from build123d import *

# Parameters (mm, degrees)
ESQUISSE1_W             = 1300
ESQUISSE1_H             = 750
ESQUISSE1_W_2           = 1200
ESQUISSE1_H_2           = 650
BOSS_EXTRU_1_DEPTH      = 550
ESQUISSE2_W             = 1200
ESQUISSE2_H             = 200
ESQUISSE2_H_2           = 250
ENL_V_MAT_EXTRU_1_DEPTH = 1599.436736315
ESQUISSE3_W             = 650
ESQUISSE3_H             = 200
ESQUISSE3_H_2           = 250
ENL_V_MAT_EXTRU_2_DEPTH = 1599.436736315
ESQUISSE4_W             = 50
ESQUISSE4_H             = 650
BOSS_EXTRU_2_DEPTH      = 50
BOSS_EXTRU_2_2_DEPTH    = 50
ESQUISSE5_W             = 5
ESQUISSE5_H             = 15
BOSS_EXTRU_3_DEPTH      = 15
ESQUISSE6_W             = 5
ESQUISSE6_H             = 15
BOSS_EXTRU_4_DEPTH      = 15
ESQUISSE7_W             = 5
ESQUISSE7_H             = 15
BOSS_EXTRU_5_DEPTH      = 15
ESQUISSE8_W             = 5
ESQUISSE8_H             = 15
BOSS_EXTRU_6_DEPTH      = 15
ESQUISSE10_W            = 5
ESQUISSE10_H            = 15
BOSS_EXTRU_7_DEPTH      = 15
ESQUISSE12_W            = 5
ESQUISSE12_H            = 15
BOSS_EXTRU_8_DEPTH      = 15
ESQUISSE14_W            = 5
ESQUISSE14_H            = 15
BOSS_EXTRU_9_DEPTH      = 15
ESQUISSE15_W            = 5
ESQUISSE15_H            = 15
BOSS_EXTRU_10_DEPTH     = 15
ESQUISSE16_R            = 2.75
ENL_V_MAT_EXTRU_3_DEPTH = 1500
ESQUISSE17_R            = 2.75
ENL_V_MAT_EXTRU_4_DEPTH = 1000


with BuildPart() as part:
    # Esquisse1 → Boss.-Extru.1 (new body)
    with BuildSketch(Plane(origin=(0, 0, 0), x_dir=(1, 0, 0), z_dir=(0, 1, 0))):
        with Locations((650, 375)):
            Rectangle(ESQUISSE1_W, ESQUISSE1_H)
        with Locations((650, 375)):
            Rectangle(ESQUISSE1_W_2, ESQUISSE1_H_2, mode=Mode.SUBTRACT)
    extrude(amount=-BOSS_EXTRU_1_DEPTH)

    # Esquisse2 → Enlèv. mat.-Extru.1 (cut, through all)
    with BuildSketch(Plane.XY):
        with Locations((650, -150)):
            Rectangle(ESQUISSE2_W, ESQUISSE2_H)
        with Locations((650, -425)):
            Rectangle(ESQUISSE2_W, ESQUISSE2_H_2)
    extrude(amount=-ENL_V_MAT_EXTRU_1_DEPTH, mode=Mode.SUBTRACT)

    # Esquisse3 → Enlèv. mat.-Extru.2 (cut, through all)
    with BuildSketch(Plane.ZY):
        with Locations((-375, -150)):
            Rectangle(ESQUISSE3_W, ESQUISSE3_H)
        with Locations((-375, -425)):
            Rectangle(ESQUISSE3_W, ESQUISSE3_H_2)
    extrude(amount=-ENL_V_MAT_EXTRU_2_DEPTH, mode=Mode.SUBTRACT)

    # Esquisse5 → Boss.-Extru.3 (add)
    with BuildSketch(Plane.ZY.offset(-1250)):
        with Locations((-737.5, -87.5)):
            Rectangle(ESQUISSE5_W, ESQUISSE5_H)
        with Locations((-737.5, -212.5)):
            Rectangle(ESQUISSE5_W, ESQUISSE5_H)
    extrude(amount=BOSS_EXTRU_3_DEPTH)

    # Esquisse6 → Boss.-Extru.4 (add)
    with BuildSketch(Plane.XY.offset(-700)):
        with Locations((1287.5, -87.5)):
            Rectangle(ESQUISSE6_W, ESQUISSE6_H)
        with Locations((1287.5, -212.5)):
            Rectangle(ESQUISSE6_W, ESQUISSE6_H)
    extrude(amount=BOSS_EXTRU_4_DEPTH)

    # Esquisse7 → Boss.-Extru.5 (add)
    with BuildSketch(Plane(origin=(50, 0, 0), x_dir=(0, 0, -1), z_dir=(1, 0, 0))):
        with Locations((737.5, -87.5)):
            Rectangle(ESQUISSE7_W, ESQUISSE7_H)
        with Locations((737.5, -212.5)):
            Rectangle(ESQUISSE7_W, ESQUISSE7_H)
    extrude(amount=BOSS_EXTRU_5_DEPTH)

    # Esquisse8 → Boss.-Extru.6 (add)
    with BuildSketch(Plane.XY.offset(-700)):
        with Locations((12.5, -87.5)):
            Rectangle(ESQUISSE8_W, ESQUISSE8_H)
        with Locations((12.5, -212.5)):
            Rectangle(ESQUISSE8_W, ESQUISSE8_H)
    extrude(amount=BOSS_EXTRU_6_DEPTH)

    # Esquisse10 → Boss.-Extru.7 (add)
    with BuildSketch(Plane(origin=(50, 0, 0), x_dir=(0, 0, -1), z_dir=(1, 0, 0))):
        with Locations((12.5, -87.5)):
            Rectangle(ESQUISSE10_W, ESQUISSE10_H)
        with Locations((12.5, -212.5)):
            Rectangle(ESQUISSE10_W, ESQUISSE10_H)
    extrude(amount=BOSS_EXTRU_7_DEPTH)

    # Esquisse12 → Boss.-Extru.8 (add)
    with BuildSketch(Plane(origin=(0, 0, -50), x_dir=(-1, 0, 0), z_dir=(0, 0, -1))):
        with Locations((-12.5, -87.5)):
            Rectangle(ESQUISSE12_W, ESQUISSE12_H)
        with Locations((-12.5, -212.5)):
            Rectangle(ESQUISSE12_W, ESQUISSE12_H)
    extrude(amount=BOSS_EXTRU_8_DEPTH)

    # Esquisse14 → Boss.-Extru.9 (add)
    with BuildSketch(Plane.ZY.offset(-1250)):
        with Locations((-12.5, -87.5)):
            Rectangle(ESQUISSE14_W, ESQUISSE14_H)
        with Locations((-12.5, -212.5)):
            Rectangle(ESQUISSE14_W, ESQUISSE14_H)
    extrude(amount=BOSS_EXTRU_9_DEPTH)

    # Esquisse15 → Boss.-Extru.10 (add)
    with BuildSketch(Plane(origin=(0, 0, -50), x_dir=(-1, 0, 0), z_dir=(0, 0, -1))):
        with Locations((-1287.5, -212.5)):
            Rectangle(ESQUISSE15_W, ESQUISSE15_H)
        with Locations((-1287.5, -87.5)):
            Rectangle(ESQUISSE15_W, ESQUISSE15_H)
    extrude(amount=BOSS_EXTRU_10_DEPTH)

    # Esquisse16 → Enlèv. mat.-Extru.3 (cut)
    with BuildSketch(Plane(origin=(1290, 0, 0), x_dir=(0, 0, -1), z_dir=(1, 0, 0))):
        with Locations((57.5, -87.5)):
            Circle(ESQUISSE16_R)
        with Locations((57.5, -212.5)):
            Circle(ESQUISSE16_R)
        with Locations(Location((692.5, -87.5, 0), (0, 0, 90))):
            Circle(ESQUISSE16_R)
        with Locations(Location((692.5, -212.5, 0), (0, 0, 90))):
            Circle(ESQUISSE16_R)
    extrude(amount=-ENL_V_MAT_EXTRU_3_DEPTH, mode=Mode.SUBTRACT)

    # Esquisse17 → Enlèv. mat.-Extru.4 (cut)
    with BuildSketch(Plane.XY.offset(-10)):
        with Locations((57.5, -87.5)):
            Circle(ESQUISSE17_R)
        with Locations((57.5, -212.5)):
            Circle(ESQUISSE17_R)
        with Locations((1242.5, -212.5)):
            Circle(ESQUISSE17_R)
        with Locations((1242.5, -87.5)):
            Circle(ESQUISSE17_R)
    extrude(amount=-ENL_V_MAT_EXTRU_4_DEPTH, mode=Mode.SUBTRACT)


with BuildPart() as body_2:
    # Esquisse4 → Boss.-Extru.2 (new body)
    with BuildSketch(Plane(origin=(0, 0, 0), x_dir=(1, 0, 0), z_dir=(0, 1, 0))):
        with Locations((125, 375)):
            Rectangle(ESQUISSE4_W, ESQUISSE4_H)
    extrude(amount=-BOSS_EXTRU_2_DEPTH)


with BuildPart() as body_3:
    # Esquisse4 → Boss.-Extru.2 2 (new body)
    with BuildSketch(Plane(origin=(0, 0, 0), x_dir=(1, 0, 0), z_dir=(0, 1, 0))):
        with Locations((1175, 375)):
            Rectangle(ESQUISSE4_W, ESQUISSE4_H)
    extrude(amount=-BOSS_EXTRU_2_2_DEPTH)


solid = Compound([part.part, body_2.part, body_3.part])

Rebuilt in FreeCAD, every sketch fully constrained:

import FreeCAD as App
import Part
import Sketcher
Q = App.Units.Quantity

doc = App.newDocument("Part")
params = doc.addObject("Spreadsheet::Sheet", "Params")
for row, (alias, value) in enumerate([
    ("sketch1_width", "1300 mm"),
    ("sketch1_width2", "1200 mm"),
    ("sketch1_height", "750 mm"),
    ("sketch1_height2", "650 mm"),
    ("pad1_length", "550 mm"),
    ("sketch2_width", "1200 mm"),
    ("sketch2_height", "200 mm"),
    ("sketch2_height2", "250 mm"),
    ("sketch3_width", "200 mm"),
    ("sketch3_width2", "250 mm"),
    ("sketch3_height", "650 mm"),
    ("sketch4_width", "15 mm"),
    ("sketch4_height", "5 mm"),
    ("pad2_length", "15 mm"),
    ("sketch5_width", "5 mm"),
    ("sketch5_height", "15 mm"),
    ("pad3_length", "15 mm"),
    ("sketch6_width", "15 mm"),
    ("sketch6_height", "5 mm"),
    ("pad4_length", "15 mm"),
    ("sketch7_width", "5 mm"),
    ("sketch7_height", "15 mm"),
    ("pad5_length", "15 mm"),
    ("sketch8_width", "15 mm"),
    ("sketch8_height", "5 mm"),
    ("pad6_length", "15 mm"),
    ("sketch9_width", "5 mm"),
    ("sketch9_height", "15 mm"),
    ("pad7_length", "15 mm"),
    ("sketch10_width", "15 mm"),
    ("sketch10_height", "5 mm"),
    ("pad8_length", "15 mm"),
    ("sketch11_width", "5 mm"),
    ("sketch11_height", "15 mm"),
    ("pad9_length", "15 mm"),
    ("sketch12_diameter", "5.5 mm"),
    ("pocket3_length", "1500 mm"),
    ("sketch13_diameter", "5.5 mm"),
    ("pocket4_length", "1000 mm"),
    ("sketch14_width", "50 mm"),
    ("sketch14_height", "650 mm"),
    ("pad10_length", "50 mm"),
    ("sketch15_width", "50 mm"),
    ("sketch15_height", "650 mm"),
    ("pad11_length", "50 mm"),
], start=1):
    params.set(f"A{row}", alias)
    params.set(f"B{row}", "=" + value)
    params.setAlias(f"B{row}", alias)

body = doc.addObject("PartDesign::Body", "Body")

# Sketch on XZ plane
sketch1 = body.newObject("Sketcher::SketchObject", "Sketch")
sketch1.AttachmentSupport = (doc.getObject("XZ_Plane"), [""])
sketch1.MapMode = "FlatFace"
sketch1.addGeometry(Part.LineSegment(App.Vector(0, -750, 0), App.Vector(0, 0, 0)), False)
sketch1.addGeometry(Part.LineSegment(App.Vector(0, 0, 0), App.Vector(1300, 0, 0)), False)
sketch1.addGeometry(Part.LineSegment(App.Vector(1300, 0, 0), App.Vector(1300, -750, 0)), False)
sketch1.addGeometry(Part.LineSegment(App.Vector(1300, -750, 0), App.Vector(0, -750, 0)), False)
sketch1.addGeometry(Part.LineSegment(App.Vector(1250, -50, 0), App.Vector(50, -50, 0)), False)
sketch1.addGeometry(Part.LineSegment(App.Vector(50, -50, 0), App.Vector(50, -700, 0)), False)
sketch1.addGeometry(Part.LineSegment(App.Vector(50, -700, 0), App.Vector(1250, -700, 0)), False)
sketch1.addGeometry(Part.LineSegment(App.Vector(1250, -700, 0), App.Vector(1250, -50, 0)), False)
sketch1.addConstraint(Sketcher.Constraint("Coincident", 0, 2, 1, 1))
sketch1.addConstraint(Sketcher.Constraint("Coincident", 1, 2, 2, 1))
sketch1.addConstraint(Sketcher.Constraint("Coincident", 2, 2, 3, 1))
sketch1.addConstraint(Sketcher.Constraint("Coincident", 3, 2, 0, 1))
sketch1.addConstraint(Sketcher.Constraint("Coincident", 4, 2, 5, 1))
sketch1.addConstraint(Sketcher.Constraint("Coincident", 5, 2, 6, 1))
sketch1.addConstraint(Sketcher.Constraint("Coincident", 6, 2, 7, 1))
sketch1.addConstraint(Sketcher.Constraint("Coincident", 7, 2, 4, 1))
sketch1.addConstraint(Sketcher.Constraint("Vertical", 0))
sketch1.addConstraint(Sketcher.Constraint("Horizontal", 1))
sketch1.addConstraint(Sketcher.Constraint("Vertical", 2))
sketch1.addConstraint(Sketcher.Constraint("Horizontal", 3))
sketch1.addConstraint(Sketcher.Constraint("Horizontal", 4))
sketch1.addConstraint(Sketcher.Constraint("Vertical", 5))
sketch1.addConstraint(Sketcher.Constraint("Horizontal", 6))
sketch1.addConstraint(Sketcher.Constraint("Vertical", 7))
sketch1.addConstraint(Sketcher.Constraint("Coincident", 0, 2, -1, 1))
sketch1.addConstraint(Sketcher.Constraint("DistanceX", 1, 1, 1, 2, Q("1300 mm")))
sketch1.addConstraint(Sketcher.Constraint("DistanceX", 4, 2, 4, 1, Q("1200 mm")))
sketch1.addConstraint(Sketcher.Constraint("DistanceY", 0, 1, 0, 2, Q("750 mm")))
sketch1.addConstraint(Sketcher.Constraint("DistanceY", 5, 2, 5, 1, Q("650 mm")))
sketch1.addConstraint(Sketcher.Constraint("DistanceX", -1, 1, 4, 2, Q("50 mm")))
sketch1.addConstraint(Sketcher.Constraint("DistanceY", 4, 2, -1, 1, Q("50 mm")))
sketch1.setExpression("Constraints[17]", "Params.sketch1_width")
sketch1.setExpression("Constraints[18]", "Params.sketch1_width2")
sketch1.setExpression("Constraints[19]", "Params.sketch1_height")
sketch1.setExpression("Constraints[20]", "Params.sketch1_height2")
pad1 = body.newObject("PartDesign::Pad", "Pad")
pad1.Profile = sketch1
pad1.setExpression("Length", "Params.pad1_length")

# Sketch on XY plane
sketch2 = body.newObject("Sketcher::SketchObject", "Sketch001")
sketch2.AttachmentSupport = (doc.getObject("XY_Plane"), [""])
sketch2.MapMode = "FlatFace"
sketch2.addGeometry(Part.LineSegment(App.Vector(50, -50, 0), App.Vector(50, -250, 0)), False)
sketch2.addGeometry(Part.LineSegment(App.Vector(50, -250, 0), App.Vector(1250, -250, 0)), False)
sketch2.addGeometry(Part.LineSegment(App.Vector(1250, -250, 0), App.Vector(1250, -50, 0)), False)
sketch2.addGeometry(Part.LineSegment(App.Vector(1250, -50, 0), App.Vector(50, -50, 0)), False)
sketch2.addGeometry(Part.LineSegment(App.Vector(50, -300, 0), App.Vector(50, -550, 0)), False)
sketch2.addGeometry(Part.LineSegment(App.Vector(50, -550, 0), App.Vector(1250, -550, 0)), False)
sketch2.addGeometry(Part.LineSegment(App.Vector(1250, -550, 0), App.Vector(1250, -300, 0)), False)
sketch2.addGeometry(Part.LineSegment(App.Vector(1250, -300, 0), App.Vector(50, -300, 0)), False)
sketch2.addConstraint(Sketcher.Constraint("Coincident", 0, 2, 1, 1))
sketch2.addConstraint(Sketcher.Constraint("Coincident", 1, 2, 2, 1))
sketch2.addConstraint(Sketcher.Constraint("Coincident", 2, 2, 3, 1))
sketch2.addConstraint(Sketcher.Constraint("Coincident", 3, 2, 0, 1))
sketch2.addConstraint(Sketcher.Constraint("Coincident", 4, 2, 5, 1))
sketch2.addConstraint(Sketcher.Constraint("Coincident", 5, 2, 6, 1))
sketch2.addConstraint(Sketcher.Constraint("Coincident", 6, 2, 7, 1))
sketch2.addConstraint(Sketcher.Constraint("Coincident", 7, 2, 4, 1))
sketch2.addConstraint(Sketcher.Constraint("Vertical", 0))
sketch2.addConstraint(Sketcher.Constraint("Horizontal", 1))
sketch2.addConstraint(Sketcher.Constraint("Vertical", 2))
sketch2.addConstraint(Sketcher.Constraint("Horizontal", 3))
sketch2.addConstraint(Sketcher.Constraint("Vertical", 4))
sketch2.addConstraint(Sketcher.Constraint("Horizontal", 5))
sketch2.addConstraint(Sketcher.Constraint("Vertical", 6))
sketch2.addConstraint(Sketcher.Constraint("Horizontal", 7))
sketch2.addConstraint(Sketcher.Constraint("Vertical", 3, 2, 4, 2))
sketch2.addConstraint(Sketcher.Constraint("Vertical", 2, 2, 5, 2))
sketch2.addConstraint(Sketcher.Constraint("DistanceX", 1, 1, 1, 2, Q("1200 mm")))
sketch2.addConstraint(Sketcher.Constraint("DistanceY", 0, 2, 0, 1, Q("200 mm")))
sketch2.addConstraint(Sketcher.Constraint("DistanceY", 4, 2, 4, 1, Q("250 mm")))
sketch2.addConstraint(Sketcher.Constraint("DistanceX", -1, 1, 0, 2, Q("50 mm")))
sketch2.addConstraint(Sketcher.Constraint("DistanceY", 0, 2, -1, 1, Q("250 mm")))
sketch2.addConstraint(Sketcher.Constraint("DistanceY", 4, 2, -1, 1, Q("550 mm")))
sketch2.setExpression("Constraints[18]", "Params.sketch2_width")
sketch2.setExpression("Constraints[19]", "Params.sketch2_height")
sketch2.setExpression("Constraints[20]", "Params.sketch2_height2")
pocket1 = body.newObject("PartDesign::Pocket", "Pocket")
pocket1.Profile = sketch2
pocket1.Type = "ThroughAll"

# Sketch on YZ plane
sketch3 = body.newObject("Sketcher::SketchObject", "Sketch002")
sketch3.AttachmentSupport = (doc.getObject("YZ_Plane"), [""])
sketch3.MapMode = "FlatFace"
sketch3.addGeometry(Part.LineSegment(App.Vector(-50, -700, 0), App.Vector(-250, -700, 0)), False)
sketch3.addGeometry(Part.LineSegment(App.Vector(-250, -700, 0), App.Vector(-250, -50, 0)), False)
sketch3.addGeometry(Part.LineSegment(App.Vector(-250, -50, 0), App.Vector(-50, -50, 0)), False)
sketch3.addGeometry(Part.LineSegment(App.Vector(-50, -50, 0), App.Vector(-50, -700, 0)), False)
sketch3.addGeometry(Part.LineSegment(App.Vector(-300, -700, 0), App.Vector(-550, -700, 0)), False)
sketch3.addGeometry(Part.LineSegment(App.Vector(-550, -700, 0), App.Vector(-550, -50, 0)), False)
sketch3.addGeometry(Part.LineSegment(App.Vector(-550, -50, 0), App.Vector(-300, -50, 0)), False)
sketch3.addGeometry(Part.LineSegment(App.Vector(-300, -50, 0), App.Vector(-300, -700, 0)), False)
sketch3.addConstraint(Sketcher.Constraint("Coincident", 0, 2, 1, 1))
sketch3.addConstraint(Sketcher.Constraint("Coincident", 1, 2, 2, 1))
sketch3.addConstraint(Sketcher.Constraint("Coincident", 2, 2, 3, 1))
sketch3.addConstraint(Sketcher.Constraint("Coincident", 3, 2, 0, 1))
sketch3.addConstraint(Sketcher.Constraint("Coincident", 4, 2, 5, 1))
sketch3.addConstraint(Sketcher.Constraint("Coincident", 5, 2, 6, 1))
sketch3.addConstraint(Sketcher.Constraint("Coincident", 6, 2, 7, 1))
sketch3.addConstraint(Sketcher.Constraint("Coincident", 7, 2, 4, 1))
sketch3.addConstraint(Sketcher.Constraint("Horizontal", 0))
sketch3.addConstraint(Sketcher.Constraint("Vertical", 1))
sketch3.addConstraint(Sketcher.Constraint("Horizontal", 2))
sketch3.addConstraint(Sketcher.Constraint("Vertical", 3))
sketch3.addConstraint(Sketcher.Constraint("Horizontal", 4))
sketch3.addConstraint(Sketcher.Constraint("Vertical", 5))
sketch3.addConstraint(Sketcher.Constraint("Horizontal", 6))
sketch3.addConstraint(Sketcher.Constraint("Vertical", 7))
sketch3.addConstraint(Sketcher.Constraint("Horizontal", 3, 2, 4, 2))
sketch3.addConstraint(Sketcher.Constraint("Horizontal", 2, 2, 5, 2))
sketch3.addConstraint(Sketcher.Constraint("DistanceX", 0, 2, 0, 1, Q("200 mm")))
sketch3.addConstraint(Sketcher.Constraint("DistanceX", 4, 2, 4, 1, Q("250 mm")))
sketch3.addConstraint(Sketcher.Constraint("DistanceY", 1, 1, 1, 2, Q("650 mm")))
sketch3.addConstraint(Sketcher.Constraint("DistanceX", 0, 2, -1, 1, Q("250 mm")))
sketch3.addConstraint(Sketcher.Constraint("DistanceY", 0, 2, -1, 1, Q("700 mm")))
sketch3.addConstraint(Sketcher.Constraint("DistanceX", 4, 2, -1, 1, Q("550 mm")))
sketch3.setExpression("Constraints[18]", "Params.sketch3_width")
sketch3.setExpression("Constraints[19]", "Params.sketch3_width2")
sketch3.setExpression("Constraints[20]", "Params.sketch3_height")
pocket2 = body.newObject("PartDesign::Pocket", "Pocket001")
pocket2.Profile = sketch3
pocket2.Type = "ThroughAll"
pocket2.Reversed = True

# Sketch on YZ plane
sketch4 = body.newObject("Sketcher::SketchObject", "Sketch003")
sketch4.AttachmentSupport = (doc.getObject("YZ_Plane"), [""])
sketch4.MapMode = "FlatFace"
sketch4.AttachmentOffset = App.Placement(App.Vector(0, 0, 1250), App.Rotation())
sketch4.addGeometry(Part.LineSegment(App.Vector(-80, -740, 0), App.Vector(-95, -740, 0)), False)
sketch4.addGeometry(Part.LineSegment(App.Vector(-95, -740, 0), App.Vector(-95, -735, 0)), False)
sketch4.addGeometry(Part.LineSegment(App.Vector(-95, -735, 0), App.Vector(-80, -735, 0)), False)
sketch4.addGeometry(Part.LineSegment(App.Vector(-80, -735, 0), App.Vector(-80, -740, 0)), False)
sketch4.addGeometry(Part.LineSegment(App.Vector(-205, -740, 0), App.Vector(-220, -740, 0)), False)
sketch4.addGeometry(Part.LineSegment(App.Vector(-220, -740, 0), App.Vector(-220, -735, 0)), False)
sketch4.addGeometry(Part.LineSegment(App.Vector(-220, -735, 0), App.Vector(-205, -735, 0)), False)
sketch4.addGeometry(Part.LineSegment(App.Vector(-205, -735, 0), App.Vector(-205, -740, 0)), False)
sketch4.addConstraint(Sketcher.Constraint("Coincident", 0, 2, 1, 1))
sketch4.addConstraint(Sketcher.Constraint("Coincident", 1, 2, 2, 1))
sketch4.addConstraint(Sketcher.Constraint("Coincident", 2, 2, 3, 1))
sketch4.addConstraint(Sketcher.Constraint("Coincident", 3, 2, 0, 1))
sketch4.addConstraint(Sketcher.Constraint("Coincident", 4, 2, 5, 1))
sketch4.addConstraint(Sketcher.Constraint("Coincident", 5, 2, 6, 1))
sketch4.addConstraint(Sketcher.Constraint("Coincident", 6, 2, 7, 1))
sketch4.addConstraint(Sketcher.Constraint("Coincident", 7, 2, 4, 1))
sketch4.addConstraint(Sketcher.Constraint("Horizontal", 0))
sketch4.addConstraint(Sketcher.Constraint("Vertical", 1))
sketch4.addConstraint(Sketcher.Constraint("Horizontal", 2))
sketch4.addConstraint(Sketcher.Constraint("Vertical", 3))
sketch4.addConstraint(Sketcher.Constraint("Horizontal", 4))
sketch4.addConstraint(Sketcher.Constraint("Vertical", 5))
sketch4.addConstraint(Sketcher.Constraint("Horizontal", 6))
sketch4.addConstraint(Sketcher.Constraint("Vertical", 7))
sketch4.addConstraint(Sketcher.Constraint("Horizontal", 3, 2, 4, 2))
sketch4.addConstraint(Sketcher.Constraint("Horizontal", 2, 2, 5, 2))
sketch4.addConstraint(Sketcher.Constraint("Equal", 2, 4))
sketch4.addConstraint(Sketcher.Constraint("DistanceX", 0, 2, 0, 1, Q("15 mm")))
sketch4.addConstraint(Sketcher.Constraint("DistanceY", 1, 1, 1, 2, Q("5 mm")))
sketch4.addConstraint(Sketcher.Constraint("DistanceX", 0, 2, -1, 1, Q("95 mm")))
sketch4.addConstraint(Sketcher.Constraint("DistanceY", 0, 2, -1, 1, Q("740 mm")))
sketch4.addConstraint(Sketcher.Constraint("DistanceX", 4, 2, -1, 1, Q("220 mm")))
sketch4.setExpression("Constraints[19]", "Params.sketch4_width")
sketch4.setExpression("Constraints[20]", "Params.sketch4_height")
pad2 = body.newObject("PartDesign::Pad", "Pad001")
pad2.Profile = sketch4
pad2.setExpression("Length", "Params.pad2_length")
pad2.Reversed = True

# Sketch on XY plane
sketch5 = body.newObject("Sketcher::SketchObject", "Sketch004")
sketch5.AttachmentSupport = (doc.getObject("XY_Plane"), [""])
sketch5.MapMode = "FlatFace"
sketch5.AttachmentOffset = App.Placement(App.Vector(0, 0, -700), App.Rotation())
sketch5.addGeometry(Part.LineSegment(App.Vector(1285, -80, 0), App.Vector(1285, -95, 0)), False)
sketch5.addGeometry(Part.LineSegment(App.Vector(1285, -95, 0), App.Vector(1290, -95, 0)), False)
sketch5.addGeometry(Part.LineSegment(App.Vector(1290, -95, 0), App.Vector(1290, -80, 0)), False)
sketch5.addGeometry(Part.LineSegment(App.Vector(1290, -80, 0), App.Vector(1285, -80, 0)), False)
sketch5.addGeometry(Part.LineSegment(App.Vector(1285, -205, 0), App.Vector(1285, -220, 0)), False)
sketch5.addGeometry(Part.LineSegment(App.Vector(1285, -220, 0), App.Vector(1290, -220, 0)), False)
sketch5.addGeometry(Part.LineSegment(App.Vector(1290, -220, 0), App.Vector(1290, -205, 0)), False)
sketch5.addGeometry(Part.LineSegment(App.Vector(1290, -205, 0), App.Vector(1285, -205, 0)), False)
sketch5.addConstraint(Sketcher.Constraint("Coincident", 0, 2, 1, 1))
sketch5.addConstraint(Sketcher.Constraint("Coincident", 1, 2, 2, 1))
sketch5.addConstraint(Sketcher.Constraint("Coincident", 2, 2, 3, 1))
sketch5.addConstraint(Sketcher.Constraint("Coincident", 3, 2, 0, 1))
sketch5.addConstraint(Sketcher.Constraint("Coincident", 4, 2, 5, 1))
sketch5.addConstraint(Sketcher.Constraint("Coincident", 5, 2, 6, 1))
sketch5.addConstraint(Sketcher.Constraint("Coincident", 6, 2, 7, 1))
sketch5.addConstraint(Sketcher.Constraint("Coincident", 7, 2, 4, 1))
sketch5.addConstraint(Sketcher.Constraint("Vertical", 0))
sketch5.addConstraint(Sketcher.Constraint("Horizontal", 1))
sketch5.addConstraint(Sketcher.Constraint("Vertical", 2))
sketch5.addConstraint(Sketcher.Constraint("Horizontal", 3))
sketch5.addConstraint(Sketcher.Constraint("Vertical", 4))
sketch5.addConstraint(Sketcher.Constraint("Horizontal", 5))
sketch5.addConstraint(Sketcher.Constraint("Vertical", 6))
sketch5.addConstraint(Sketcher.Constraint("Horizontal", 7))
sketch5.addConstraint(Sketcher.Constraint("Vertical", 3, 2, 4, 2))
sketch5.addConstraint(Sketcher.Constraint("Vertical", 2, 2, 5, 2))
sketch5.addConstraint(Sketcher.Constraint("Equal", 2, 4))
sketch5.addConstraint(Sketcher.Constraint("DistanceX", 1, 1, 1, 2, Q("5 mm")))
sketch5.addConstraint(Sketcher.Constraint("DistanceY", 0, 2, 0, 1, Q("15 mm")))
sketch5.addConstraint(Sketcher.Constraint("DistanceX", -1, 1, 0, 2, Q("1285 mm")))
sketch5.addConstraint(Sketcher.Constraint("DistanceY", 0, 2, -1, 1, Q("95 mm")))
sketch5.addConstraint(Sketcher.Constraint("DistanceY", 4, 2, -1, 1, Q("220 mm")))
sketch5.setExpression("Constraints[19]", "Params.sketch5_width")
sketch5.setExpression("Constraints[20]", "Params.sketch5_height")
pad3 = body.newObject("PartDesign::Pad", "Pad002")
pad3.Profile = sketch5
pad3.setExpression("Length", "Params.pad3_length")

# Sketch on YZ plane
sketch6 = body.newObject("Sketcher::SketchObject", "Sketch005")
sketch6.AttachmentSupport = (doc.getObject("YZ_Plane"), [""])
sketch6.MapMode = "FlatFace"
sketch6.AttachmentOffset = App.Placement(App.Vector(0, 0, 50), App.Rotation())
sketch6.addGeometry(Part.LineSegment(App.Vector(-80, -735, 0), App.Vector(-95, -735, 0)), False)
sketch6.addGeometry(Part.LineSegment(App.Vector(-95, -735, 0), App.Vector(-95, -740, 0)), False)
sketch6.addGeometry(Part.LineSegment(App.Vector(-95, -740, 0), App.Vector(-80, -740, 0)), False)
sketch6.addGeometry(Part.LineSegment(App.Vector(-80, -740, 0), App.Vector(-80, -735, 0)), False)
sketch6.addGeometry(Part.LineSegment(App.Vector(-205, -735, 0), App.Vector(-220, -735, 0)), False)
sketch6.addGeometry(Part.LineSegment(App.Vector(-220, -735, 0), App.Vector(-220, -740, 0)), False)
sketch6.addGeometry(Part.LineSegment(App.Vector(-220, -740, 0), App.Vector(-205, -740, 0)), False)
sketch6.addGeometry(Part.LineSegment(App.Vector(-205, -740, 0), App.Vector(-205, -735, 0)), False)
sketch6.addConstraint(Sketcher.Constraint("Coincident", 0, 2, 1, 1))
sketch6.addConstraint(Sketcher.Constraint("Coincident", 1, 2, 2, 1))
sketch6.addConstraint(Sketcher.Constraint("Coincident", 2, 2, 3, 1))
sketch6.addConstraint(Sketcher.Constraint("Coincident", 3, 2, 0, 1))
sketch6.addConstraint(Sketcher.Constraint("Coincident", 4, 2, 5, 1))
sketch6.addConstraint(Sketcher.Constraint("Coincident", 5, 2, 6, 1))
sketch6.addConstraint(Sketcher.Constraint("Coincident", 6, 2, 7, 1))
sketch6.addConstraint(Sketcher.Constraint("Coincident", 7, 2, 4, 1))
sketch6.addConstraint(Sketcher.Constraint("Horizontal", 0))
sketch6.addConstraint(Sketcher.Constraint("Vertical", 1))
sketch6.addConstraint(Sketcher.Constraint("Horizontal", 2))
sketch6.addConstraint(Sketcher.Constraint("Vertical", 3))
sketch6.addConstraint(Sketcher.Constraint("Horizontal", 4))
sketch6.addConstraint(Sketcher.Constraint("Vertical", 5))
sketch6.addConstraint(Sketcher.Constraint("Horizontal", 6))
sketch6.addConstraint(Sketcher.Constraint("Vertical", 7))
sketch6.addConstraint(Sketcher.Constraint("Horizontal", 3, 2, 4, 2))
sketch6.addConstraint(Sketcher.Constraint("Horizontal", 2, 2, 5, 2))
sketch6.addConstraint(Sketcher.Constraint("Equal", 2, 4))
sketch6.addConstraint(Sketcher.Constraint("DistanceX", 0, 2, 0, 1, Q("15 mm")))
sketch6.addConstraint(Sketcher.Constraint("DistanceY", 1, 2, 1, 1, Q("5 mm")))
sketch6.addConstraint(Sketcher.Constraint("DistanceX", 0, 2, -1, 1, Q("95 mm")))
sketch6.addConstraint(Sketcher.Constraint("DistanceY", 0, 2, -1, 1, Q("735 mm")))
sketch6.addConstraint(Sketcher.Constraint("DistanceX", 4, 2, -1, 1, Q("220 mm")))
sketch6.setExpression("Constraints[19]", "Params.sketch6_width")
sketch6.setExpression("Constraints[20]", "Params.sketch6_height")
pad4 = body.newObject("PartDesign::Pad", "Pad003")
pad4.Profile = sketch6
pad4.setExpression("Length", "Params.pad4_length")

# Sketch on XY plane
sketch7 = body.newObject("Sketcher::SketchObject", "Sketch006")
sketch7.AttachmentSupport = (doc.getObject("XY_Plane"), [""])
sketch7.MapMode = "FlatFace"
sketch7.AttachmentOffset = App.Placement(App.Vector(0, 0, -700), App.Rotation())
sketch7.addGeometry(Part.LineSegment(App.Vector(10, -80, 0), App.Vector(10, -95, 0)), False)
sketch7.addGeometry(Part.LineSegment(App.Vector(10, -95, 0), App.Vector(15, -95, 0)), False)
sketch7.addGeometry(Part.LineSegment(App.Vector(15, -95, 0), App.Vector(15, -80, 0)), False)
sketch7.addGeometry(Part.LineSegment(App.Vector(15, -80, 0), App.Vector(10, -80, 0)), False)
sketch7.addGeometry(Part.LineSegment(App.Vector(10, -205, 0), App.Vector(10, -220, 0)), False)
sketch7.addGeometry(Part.LineSegment(App.Vector(10, -220, 0), App.Vector(15, -220, 0)), False)
sketch7.addGeometry(Part.LineSegment(App.Vector(15, -220, 0), App.Vector(15, -205, 0)), False)
sketch7.addGeometry(Part.LineSegment(App.Vector(15, -205, 0), App.Vector(10, -205, 0)), False)
sketch7.addConstraint(Sketcher.Constraint("Coincident", 0, 2, 1, 1))
sketch7.addConstraint(Sketcher.Constraint("Coincident", 1, 2, 2, 1))
sketch7.addConstraint(Sketcher.Constraint("Coincident", 2, 2, 3, 1))
sketch7.addConstraint(Sketcher.Constraint("Coincident", 3, 2, 0, 1))
sketch7.addConstraint(Sketcher.Constraint("Coincident", 4, 2, 5, 1))
sketch7.addConstraint(Sketcher.Constraint("Coincident", 5, 2, 6, 1))
sketch7.addConstraint(Sketcher.Constraint("Coincident", 6, 2, 7, 1))
sketch7.addConstraint(Sketcher.Constraint("Coincident", 7, 2, 4, 1))
sketch7.addConstraint(Sketcher.Constraint("Vertical", 0))
sketch7.addConstraint(Sketcher.Constraint("Horizontal", 1))
sketch7.addConstraint(Sketcher.Constraint("Vertical", 2))
sketch7.addConstraint(Sketcher.Constraint("Horizontal", 3))
sketch7.addConstraint(Sketcher.Constraint("Vertical", 4))
sketch7.addConstraint(Sketcher.Constraint("Horizontal", 5))
sketch7.addConstraint(Sketcher.Constraint("Vertical", 6))
sketch7.addConstraint(Sketcher.Constraint("Horizontal", 7))
sketch7.addConstraint(Sketcher.Constraint("Vertical", 3, 2, 4, 2))
sketch7.addConstraint(Sketcher.Constraint("Vertical", 2, 2, 5, 2))
sketch7.addConstraint(Sketcher.Constraint("Equal", 2, 4))
sketch7.addConstraint(Sketcher.Constraint("DistanceX", 1, 1, 1, 2, Q("5 mm")))
sketch7.addConstraint(Sketcher.Constraint("DistanceY", 0, 2, 0, 1, Q("15 mm")))
sketch7.addConstraint(Sketcher.Constraint("DistanceX", -1, 1, 0, 2, Q("10 mm")))
sketch7.addConstraint(Sketcher.Constraint("DistanceY", 0, 2, -1, 1, Q("95 mm")))
sketch7.addConstraint(Sketcher.Constraint("DistanceY", 4, 2, -1, 1, Q("220 mm")))
sketch7.setExpression("Constraints[19]", "Params.sketch7_width")
sketch7.setExpression("Constraints[20]", "Params.sketch7_height")
pad5 = body.newObject("PartDesign::Pad", "Pad004")
pad5.Profile = sketch7
pad5.setExpression("Length", "Params.pad5_length")

# Sketch on YZ plane
sketch8 = body.newObject("Sketcher::SketchObject", "Sketch007")
sketch8.AttachmentSupport = (doc.getObject("YZ_Plane"), [""])
sketch8.MapMode = "FlatFace"
sketch8.AttachmentOffset = App.Placement(App.Vector(0, 0, 50), App.Rotation())
sketch8.addGeometry(Part.LineSegment(App.Vector(-80, -10, 0), App.Vector(-95, -10, 0)), False)
sketch8.addGeometry(Part.LineSegment(App.Vector(-95, -10, 0), App.Vector(-95, -15, 0)), False)
sketch8.addGeometry(Part.LineSegment(App.Vector(-95, -15, 0), App.Vector(-80, -15, 0)), False)
sketch8.addGeometry(Part.LineSegment(App.Vector(-80, -15, 0), App.Vector(-80, -10, 0)), False)
sketch8.addGeometry(Part.LineSegment(App.Vector(-205, -10, 0), App.Vector(-220, -10, 0)), False)
sketch8.addGeometry(Part.LineSegment(App.Vector(-220, -10, 0), App.Vector(-220, -15, 0)), False)
sketch8.addGeometry(Part.LineSegment(App.Vector(-220, -15, 0), App.Vector(-205, -15, 0)), False)
sketch8.addGeometry(Part.LineSegment(App.Vector(-205, -15, 0), App.Vector(-205, -10, 0)), False)
sketch8.addConstraint(Sketcher.Constraint("Coincident", 0, 2, 1, 1))
sketch8.addConstraint(Sketcher.Constraint("Coincident", 1, 2, 2, 1))
sketch8.addConstraint(Sketcher.Constraint("Coincident", 2, 2, 3, 1))
sketch8.addConstraint(Sketcher.Constraint("Coincident", 3, 2, 0, 1))
sketch8.addConstraint(Sketcher.Constraint("Coincident", 4, 2, 5, 1))
sketch8.addConstraint(Sketcher.Constraint("Coincident", 5, 2, 6, 1))
sketch8.addConstraint(Sketcher.Constraint("Coincident", 6, 2, 7, 1))
sketch8.addConstraint(Sketcher.Constraint("Coincident", 7, 2, 4, 1))
sketch8.addConstraint(Sketcher.Constraint("Horizontal", 0))
sketch8.addConstraint(Sketcher.Constraint("Vertical", 1))
sketch8.addConstraint(Sketcher.Constraint("Horizontal", 2))
sketch8.addConstraint(Sketcher.Constraint("Vertical", 3))
sketch8.addConstraint(Sketcher.Constraint("Horizontal", 4))
sketch8.addConstraint(Sketcher.Constraint("Vertical", 5))
sketch8.addConstraint(Sketcher.Constraint("Horizontal", 6))
sketch8.addConstraint(Sketcher.Constraint("Vertical", 7))
sketch8.addConstraint(Sketcher.Constraint("Horizontal", 3, 2, 4, 2))
sketch8.addConstraint(Sketcher.Constraint("Horizontal", 2, 2, 5, 2))
sketch8.addConstraint(Sketcher.Constraint("Equal", 2, 4))
sketch8.addConstraint(Sketcher.Constraint("DistanceX", 0, 2, 0, 1, Q("15 mm")))
sketch8.addConstraint(Sketcher.Constraint("DistanceY", 1, 2, 1, 1, Q("5 mm")))
sketch8.addConstraint(Sketcher.Constraint("DistanceX", 0, 2, -1, 1, Q("95 mm")))
sketch8.addConstraint(Sketcher.Constraint("DistanceY", 0, 2, -1, 1, Q("10 mm")))
sketch8.addConstraint(Sketcher.Constraint("DistanceX", 4, 2, -1, 1, Q("220 mm")))
sketch8.setExpression("Constraints[19]", "Params.sketch8_width")
sketch8.setExpression("Constraints[20]", "Params.sketch8_height")
pad6 = body.newObject("PartDesign::Pad", "Pad005")
pad6.Profile = sketch8
pad6.setExpression("Length", "Params.pad6_length")

# Sketch on XY plane
sketch9 = body.newObject("Sketcher::SketchObject", "Sketch008")
sketch9.AttachmentSupport = (doc.getObject("XY_Plane"), [""])
sketch9.MapMode = "FlatFace"
sketch9.AttachmentOffset = App.Placement(App.Vector(0, 0, -50), App.Rotation())
sketch9.addGeometry(Part.LineSegment(App.Vector(15, -80, 0), App.Vector(15, -95, 0)), False)
sketch9.addGeometry(Part.LineSegment(App.Vector(15, -95, 0), App.Vector(10, -95, 0)), False)
sketch9.addGeometry(Part.LineSegment(App.Vector(10, -95, 0), App.Vector(10, -80, 0)), False)
sketch9.addGeometry(Part.LineSegment(App.Vector(10, -80, 0), App.Vector(15, -80, 0)), False)
sketch9.addGeometry(Part.LineSegment(App.Vector(15, -205, 0), App.Vector(15, -220, 0)), False)
sketch9.addGeometry(Part.LineSegment(App.Vector(15, -220, 0), App.Vector(10, -220, 0)), False)
sketch9.addGeometry(Part.LineSegment(App.Vector(10, -220, 0), App.Vector(10, -205, 0)), False)
sketch9.addGeometry(Part.LineSegment(App.Vector(10, -205, 0), App.Vector(15, -205, 0)), False)
sketch9.addConstraint(Sketcher.Constraint("Coincident", 0, 2, 1, 1))
sketch9.addConstraint(Sketcher.Constraint("Coincident", 1, 2, 2, 1))
sketch9.addConstraint(Sketcher.Constraint("Coincident", 2, 2, 3, 1))
sketch9.addConstraint(Sketcher.Constraint("Coincident", 3, 2, 0, 1))
sketch9.addConstraint(Sketcher.Constraint("Coincident", 4, 2, 5, 1))
sketch9.addConstraint(Sketcher.Constraint("Coincident", 5, 2, 6, 1))
sketch9.addConstraint(Sketcher.Constraint("Coincident", 6, 2, 7, 1))
sketch9.addConstraint(Sketcher.Constraint("Coincident", 7, 2, 4, 1))
sketch9.addConstraint(Sketcher.Constraint("Vertical", 0))
sketch9.addConstraint(Sketcher.Constraint("Horizontal", 1))
sketch9.addConstraint(Sketcher.Constraint("Vertical", 2))
sketch9.addConstraint(Sketcher.Constraint("Horizontal", 3))
sketch9.addConstraint(Sketcher.Constraint("Vertical", 4))
sketch9.addConstraint(Sketcher.Constraint("Horizontal", 5))
sketch9.addConstraint(Sketcher.Constraint("Vertical", 6))
sketch9.addConstraint(Sketcher.Constraint("Horizontal", 7))
sketch9.addConstraint(Sketcher.Constraint("Vertical", 3, 2, 4, 2))
sketch9.addConstraint(Sketcher.Constraint("Vertical", 2, 2, 5, 2))
sketch9.addConstraint(Sketcher.Constraint("Equal", 2, 4))
sketch9.addConstraint(Sketcher.Constraint("DistanceX", 1, 2, 1, 1, Q("5 mm")))
sketch9.addConstraint(Sketcher.Constraint("DistanceY", 0, 2, 0, 1, Q("15 mm")))
sketch9.addConstraint(Sketcher.Constraint("DistanceX", -1, 1, 0, 2, Q("15 mm")))
sketch9.addConstraint(Sketcher.Constraint("DistanceY", 0, 2, -1, 1, Q("95 mm")))
sketch9.addConstraint(Sketcher.Constraint("DistanceY", 4, 2, -1, 1, Q("220 mm")))
sketch9.setExpression("Constraints[19]", "Params.sketch9_width")
sketch9.setExpression("Constraints[20]", "Params.sketch9_height")
pad7 = body.newObject("PartDesign::Pad", "Pad006")
pad7.Profile = sketch9
pad7.setExpression("Length", "Params.pad7_length")
pad7.Reversed = True

# Sketch on YZ plane
sketch10 = body.newObject("Sketcher::SketchObject", "Sketch009")
sketch10.AttachmentSupport = (doc.getObject("YZ_Plane"), [""])
sketch10.MapMode = "FlatFace"
sketch10.AttachmentOffset = App.Placement(App.Vector(0, 0, 1250), App.Rotation())
sketch10.addGeometry(Part.LineSegment(App.Vector(-80, -15, 0), App.Vector(-95, -15, 0)), False)
sketch10.addGeometry(Part.LineSegment(App.Vector(-95, -15, 0), App.Vector(-95, -10, 0)), False)
sketch10.addGeometry(Part.LineSegment(App.Vector(-95, -10, 0), App.Vector(-80, -10, 0)), False)
sketch10.addGeometry(Part.LineSegment(App.Vector(-80, -10, 0), App.Vector(-80, -15, 0)), False)
sketch10.addGeometry(Part.LineSegment(App.Vector(-205, -15, 0), App.Vector(-220, -15, 0)), False)
sketch10.addGeometry(Part.LineSegment(App.Vector(-220, -15, 0), App.Vector(-220, -10, 0)), False)
sketch10.addGeometry(Part.LineSegment(App.Vector(-220, -10, 0), App.Vector(-205, -10, 0)), False)
sketch10.addGeometry(Part.LineSegment(App.Vector(-205, -10, 0), App.Vector(-205, -15, 0)), False)
sketch10.addConstraint(Sketcher.Constraint("Coincident", 0, 2, 1, 1))
sketch10.addConstraint(Sketcher.Constraint("Coincident", 1, 2, 2, 1))
sketch10.addConstraint(Sketcher.Constraint("Coincident", 2, 2, 3, 1))
sketch10.addConstraint(Sketcher.Constraint("Coincident", 3, 2, 0, 1))
sketch10.addConstraint(Sketcher.Constraint("Coincident", 4, 2, 5, 1))
sketch10.addConstraint(Sketcher.Constraint("Coincident", 5, 2, 6, 1))
sketch10.addConstraint(Sketcher.Constraint("Coincident", 6, 2, 7, 1))
sketch10.addConstraint(Sketcher.Constraint("Coincident", 7, 2, 4, 1))
sketch10.addConstraint(Sketcher.Constraint("Horizontal", 0))
sketch10.addConstraint(Sketcher.Constraint("Vertical", 1))
sketch10.addConstraint(Sketcher.Constraint("Horizontal", 2))
sketch10.addConstraint(Sketcher.Constraint("Vertical", 3))
sketch10.addConstraint(Sketcher.Constraint("Horizontal", 4))
sketch10.addConstraint(Sketcher.Constraint("Vertical", 5))
sketch10.addConstraint(Sketcher.Constraint("Horizontal", 6))
sketch10.addConstraint(Sketcher.Constraint("Vertical", 7))
sketch10.addConstraint(Sketcher.Constraint("Horizontal", 3, 2, 4, 2))
sketch10.addConstraint(Sketcher.Constraint("Horizontal", 2, 2, 5, 2))
sketch10.addConstraint(Sketcher.Constraint("Equal", 2, 4))
sketch10.addConstraint(Sketcher.Constraint("DistanceX", 0, 2, 0, 1, Q("15 mm")))
sketch10.addConstraint(Sketcher.Constraint("DistanceY", 1, 1, 1, 2, Q("5 mm")))
sketch10.addConstraint(Sketcher.Constraint("DistanceX", 0, 2, -1, 1, Q("95 mm")))
sketch10.addConstraint(Sketcher.Constraint("DistanceY", 0, 2, -1, 1, Q("15 mm")))
sketch10.addConstraint(Sketcher.Constraint("DistanceX", 4, 2, -1, 1, Q("220 mm")))
sketch10.setExpression("Constraints[19]", "Params.sketch10_width")
sketch10.setExpression("Constraints[20]", "Params.sketch10_height")
pad8 = body.newObject("PartDesign::Pad", "Pad007")
pad8.Profile = sketch10
pad8.setExpression("Length", "Params.pad8_length")
pad8.Reversed = True

# Sketch on XY plane
sketch11 = body.newObject("Sketcher::SketchObject", "Sketch010")
sketch11.AttachmentSupport = (doc.getObject("XY_Plane"), [""])
sketch11.MapMode = "FlatFace"
sketch11.AttachmentOffset = App.Placement(App.Vector(0, 0, -50), App.Rotation())
sketch11.addGeometry(Part.LineSegment(App.Vector(1290, -205, 0), App.Vector(1290, -220, 0)), False)
sketch11.addGeometry(Part.LineSegment(App.Vector(1290, -220, 0), App.Vector(1285, -220, 0)), False)
sketch11.addGeometry(Part.LineSegment(App.Vector(1285, -220, 0), App.Vector(1285, -205, 0)), False)
sketch11.addGeometry(Part.LineSegment(App.Vector(1285, -205, 0), App.Vector(1290, -205, 0)), False)
sketch11.addGeometry(Part.LineSegment(App.Vector(1290, -80, 0), App.Vector(1290, -95, 0)), False)
sketch11.addGeometry(Part.LineSegment(App.Vector(1290, -95, 0), App.Vector(1285, -95, 0)), False)
sketch11.addGeometry(Part.LineSegment(App.Vector(1285, -95, 0), App.Vector(1285, -80, 0)), False)
sketch11.addGeometry(Part.LineSegment(App.Vector(1285, -80, 0), App.Vector(1290, -80, 0)), False)
sketch11.addConstraint(Sketcher.Constraint("Coincident", 0, 2, 1, 1))
sketch11.addConstraint(Sketcher.Constraint("Coincident", 1, 2, 2, 1))
sketch11.addConstraint(Sketcher.Constraint("Coincident", 2, 2, 3, 1))
sketch11.addConstraint(Sketcher.Constraint("Coincident", 3, 2, 0, 1))
sketch11.addConstraint(Sketcher.Constraint("Coincident", 4, 2, 5, 1))
sketch11.addConstraint(Sketcher.Constraint("Coincident", 5, 2, 6, 1))
sketch11.addConstraint(Sketcher.Constraint("Coincident", 6, 2, 7, 1))
sketch11.addConstraint(Sketcher.Constraint("Coincident", 7, 2, 4, 1))
sketch11.addConstraint(Sketcher.Constraint("Vertical", 0))
sketch11.addConstraint(Sketcher.Constraint("Horizontal", 1))
sketch11.addConstraint(Sketcher.Constraint("Vertical", 2))
sketch11.addConstraint(Sketcher.Constraint("Horizontal", 3))
sketch11.addConstraint(Sketcher.Constraint("Vertical", 4))
sketch11.addConstraint(Sketcher.Constraint("Horizontal", 5))
sketch11.addConstraint(Sketcher.Constraint("Vertical", 6))
sketch11.addConstraint(Sketcher.Constraint("Horizontal", 7))
sketch11.addConstraint(Sketcher.Constraint("Vertical", 3, 2, 4, 2))
sketch11.addConstraint(Sketcher.Constraint("Vertical", 2, 2, 5, 2))
sketch11.addConstraint(Sketcher.Constraint("Equal", 2, 4))
sketch11.addConstraint(Sketcher.Constraint("DistanceX", 1, 2, 1, 1, Q("5 mm")))
sketch11.addConstraint(Sketcher.Constraint("DistanceY", 0, 2, 0, 1, Q("15 mm")))
sketch11.addConstraint(Sketcher.Constraint("DistanceX", -1, 1, 0, 2, Q("1290 mm")))
sketch11.addConstraint(Sketcher.Constraint("DistanceY", 0, 2, -1, 1, Q("220 mm")))
sketch11.addConstraint(Sketcher.Constraint("DistanceY", 4, 2, -1, 1, Q("95 mm")))
sketch11.setExpression("Constraints[19]", "Params.sketch11_width")
sketch11.setExpression("Constraints[20]", "Params.sketch11_height")
pad9 = body.newObject("PartDesign::Pad", "Pad008")
pad9.Profile = sketch11
pad9.setExpression("Length", "Params.pad9_length")
pad9.Reversed = True

# Sketch on YZ plane
sketch12 = body.newObject("Sketcher::SketchObject", "Sketch011")
sketch12.AttachmentSupport = (doc.getObject("YZ_Plane"), [""])
sketch12.MapMode = "FlatFace"
sketch12.AttachmentOffset = App.Placement(App.Vector(0, 0, 1290), App.Rotation())
sketch12.addGeometry(Part.Circle(App.Vector(-87.5, -57.5, 0), App.Vector(0, 0, 1), 2.8), False)
sketch12.addGeometry(Part.Circle(App.Vector(-212.5, -57.5, 0), App.Vector(0, 0, 1), 2.8), False)
sketch12.addGeometry(Part.Circle(App.Vector(-87.5, -692.5, 0), App.Vector(0, 0, 1), 2.8), False)
sketch12.addGeometry(Part.Circle(App.Vector(-212.5, -692.5, 0), App.Vector(0, 0, 1), 2.8), False)
sketch12.addConstraint(Sketcher.Constraint("Equal", 0, 1))
sketch12.addConstraint(Sketcher.Constraint("Equal", 1, 2))
sketch12.addConstraint(Sketcher.Constraint("Equal", 2, 3))
sketch12.addConstraint(Sketcher.Constraint("Horizontal", 0, 3, 1, 3))
sketch12.addConstraint(Sketcher.Constraint("Horizontal", 2, 3, 3, 3))
sketch12.addConstraint(Sketcher.Constraint("Vertical", 0, 3, 2, 3))
sketch12.addConstraint(Sketcher.Constraint("Vertical", 1, 3, 3, 3))
sketch12.addConstraint(Sketcher.Constraint("Diameter", 0, Q("5.5 mm")))
sketch12.addConstraint(Sketcher.Constraint("DistanceX", 1, 3, 0, 3, Q("125 mm")))
sketch12.addConstraint(Sketcher.Constraint("DistanceY", 2, 3, 0, 3, Q("635 mm")))
sketch12.addConstraint(Sketcher.Constraint("DistanceX", 0, 3, -1, 1, Q("87.5 mm")))
sketch12.addConstraint(Sketcher.Constraint("DistanceY", 0, 3, -1, 1, Q("57.5 mm")))
sketch12.setExpression("Constraints[7]", "Params.sketch12_diameter")
pocket3 = body.newObject("PartDesign::Pocket", "Pocket002")
pocket3.Profile = sketch12
pocket3.setExpression("Length", "Params.pocket3_length")

# Sketch on XY plane
sketch13 = body.newObject("Sketcher::SketchObject", "Sketch012")
sketch13.AttachmentSupport = (doc.getObject("XY_Plane"), [""])
sketch13.MapMode = "FlatFace"
sketch13.AttachmentOffset = App.Placement(App.Vector(0, 0, -10), App.Rotation())
sketch13.addGeometry(Part.Circle(App.Vector(57.5, -87.5, 0), App.Vector(0, 0, 1), 2.8), False)
sketch13.addGeometry(Part.Circle(App.Vector(57.5, -212.5, 0), App.Vector(0, 0, 1), 2.8), False)
sketch13.addGeometry(Part.Circle(App.Vector(1242.5, -212.5, 0), App.Vector(0, 0, 1), 2.8), False)
sketch13.addGeometry(Part.Circle(App.Vector(1242.5, -87.5, 0), App.Vector(0, 0, 1), 2.8), False)
sketch13.addConstraint(Sketcher.Constraint("Equal", 0, 1))
sketch13.addConstraint(Sketcher.Constraint("Equal", 1, 2))
sketch13.addConstraint(Sketcher.Constraint("Equal", 2, 3))
sketch13.addConstraint(Sketcher.Constraint("Horizontal", 1, 3, 2, 3))
sketch13.addConstraint(Sketcher.Constraint("Horizontal", 0, 3, 3, 3))
sketch13.addConstraint(Sketcher.Constraint("Vertical", 0, 3, 1, 3))
sketch13.addConstraint(Sketcher.Constraint("Vertical", 2, 3, 3, 3))
sketch13.addConstraint(Sketcher.Constraint("Diameter", 0, Q("5.5 mm")))
sketch13.addConstraint(Sketcher.Constraint("DistanceY", 1, 3, 0, 3, Q("125 mm")))
sketch13.addConstraint(Sketcher.Constraint("DistanceX", 1, 3, 2, 3, Q("1185 mm")))
sketch13.addConstraint(Sketcher.Constraint("DistanceX", -1, 1, 0, 3, Q("57.5 mm")))
sketch13.addConstraint(Sketcher.Constraint("DistanceY", 0, 3, -1, 1, Q("87.5 mm")))
sketch13.setExpression("Constraints[7]", "Params.sketch13_diameter")
pocket4 = body.newObject("PartDesign::Pocket", "Pocket003")
pocket4.Profile = sketch13
pocket4.setExpression("Length", "Params.pocket4_length")
body2 = doc.addObject("PartDesign::Body", "Body001")

# Sketch on XZ plane
sketch14 = body2.newObject("Sketcher::SketchObject", "Sketch013")
sketch14.AttachmentSupport = (doc.getObject("XZ_Plane001"), [""])
sketch14.MapMode = "FlatFace"
sketch14.addGeometry(Part.LineSegment(App.Vector(100, -700, 0), App.Vector(100, -50, 0)), False)
sketch14.addGeometry(Part.LineSegment(App.Vector(100, -50, 0), App.Vector(150, -50, 0)), False)
sketch14.addGeometry(Part.LineSegment(App.Vector(150, -50, 0), App.Vector(150, -700, 0)), False)
sketch14.addGeometry(Part.LineSegment(App.Vector(150, -700, 0), App.Vector(100, -700, 0)), False)
sketch14.addConstraint(Sketcher.Constraint("Coincident", 0, 2, 1, 1))
sketch14.addConstraint(Sketcher.Constraint("Coincident", 1, 2, 2, 1))
sketch14.addConstraint(Sketcher.Constraint("Coincident", 2, 2, 3, 1))
sketch14.addConstraint(Sketcher.Constraint("Coincident", 3, 2, 0, 1))
sketch14.addConstraint(Sketcher.Constraint("Vertical", 0))
sketch14.addConstraint(Sketcher.Constraint("Horizontal", 1))
sketch14.addConstraint(Sketcher.Constraint("Vertical", 2))
sketch14.addConstraint(Sketcher.Constraint("Horizontal", 3))
sketch14.addConstraint(Sketcher.Constraint("DistanceX", 1, 1, 1, 2, Q("50 mm")))
sketch14.addConstraint(Sketcher.Constraint("DistanceY", 0, 1, 0, 2, Q("650 mm")))
sketch14.addConstraint(Sketcher.Constraint("DistanceX", -1, 1, 0, 2, Q("100 mm")))
sketch14.addConstraint(Sketcher.Constraint("DistanceY", 0, 2, -1, 1, Q("50 mm")))
sketch14.setExpression("Constraints[8]", "Params.sketch14_width")
sketch14.setExpression("Constraints[9]", "Params.sketch14_height")
pad10 = body2.newObject("PartDesign::Pad", "Pad009")
pad10.Profile = sketch14
pad10.setExpression("Length", "Params.pad10_length")
body3 = doc.addObject("PartDesign::Body", "Body002")

# Sketch on XZ plane
sketch15 = body3.newObject("Sketcher::SketchObject", "Sketch014")
sketch15.AttachmentSupport = (doc.getObject("XZ_Plane002"), [""])
sketch15.MapMode = "FlatFace"
sketch15.addGeometry(Part.LineSegment(App.Vector(1150, -700, 0), App.Vector(1150, -50, 0)), False)
sketch15.addGeometry(Part.LineSegment(App.Vector(1150, -50, 0), App.Vector(1200, -50, 0)), False)
sketch15.addGeometry(Part.LineSegment(App.Vector(1200, -50, 0), App.Vector(1200, -700, 0)), False)
sketch15.addGeometry(Part.LineSegment(App.Vector(1200, -700, 0), App.Vector(1150, -700, 0)), False)
sketch15.addConstraint(Sketcher.Constraint("Coincident", 0, 2, 1, 1))
sketch15.addConstraint(Sketcher.Constraint("Coincident", 1, 2, 2, 1))
sketch15.addConstraint(Sketcher.Constraint("Coincident", 2, 2, 3, 1))
sketch15.addConstraint(Sketcher.Constraint("Coincident", 3, 2, 0, 1))
sketch15.addConstraint(Sketcher.Constraint("Vertical", 0))
sketch15.addConstraint(Sketcher.Constraint("Horizontal", 1))
sketch15.addConstraint(Sketcher.Constraint("Vertical", 2))
sketch15.addConstraint(Sketcher.Constraint("Horizontal", 3))
sketch15.addConstraint(Sketcher.Constraint("DistanceX", 1, 1, 1, 2, Q("50 mm")))
sketch15.addConstraint(Sketcher.Constraint("DistanceY", 0, 1, 0, 2, Q("650 mm")))
sketch15.addConstraint(Sketcher.Constraint("DistanceX", -1, 1, 0, 2, Q("1150 mm")))
sketch15.addConstraint(Sketcher.Constraint("DistanceY", 0, 2, -1, 1, Q("50 mm")))
sketch15.setExpression("Constraints[8]", "Params.sketch15_width")
sketch15.setExpression("Constraints[9]", "Params.sketch15_height")
pad11 = body3.newObject("PartDesign::Pad", "Pad010")
pad11.Profile = sketch15
pad11.setExpression("Length", "Params.pad11_length")

doc.recompute()
